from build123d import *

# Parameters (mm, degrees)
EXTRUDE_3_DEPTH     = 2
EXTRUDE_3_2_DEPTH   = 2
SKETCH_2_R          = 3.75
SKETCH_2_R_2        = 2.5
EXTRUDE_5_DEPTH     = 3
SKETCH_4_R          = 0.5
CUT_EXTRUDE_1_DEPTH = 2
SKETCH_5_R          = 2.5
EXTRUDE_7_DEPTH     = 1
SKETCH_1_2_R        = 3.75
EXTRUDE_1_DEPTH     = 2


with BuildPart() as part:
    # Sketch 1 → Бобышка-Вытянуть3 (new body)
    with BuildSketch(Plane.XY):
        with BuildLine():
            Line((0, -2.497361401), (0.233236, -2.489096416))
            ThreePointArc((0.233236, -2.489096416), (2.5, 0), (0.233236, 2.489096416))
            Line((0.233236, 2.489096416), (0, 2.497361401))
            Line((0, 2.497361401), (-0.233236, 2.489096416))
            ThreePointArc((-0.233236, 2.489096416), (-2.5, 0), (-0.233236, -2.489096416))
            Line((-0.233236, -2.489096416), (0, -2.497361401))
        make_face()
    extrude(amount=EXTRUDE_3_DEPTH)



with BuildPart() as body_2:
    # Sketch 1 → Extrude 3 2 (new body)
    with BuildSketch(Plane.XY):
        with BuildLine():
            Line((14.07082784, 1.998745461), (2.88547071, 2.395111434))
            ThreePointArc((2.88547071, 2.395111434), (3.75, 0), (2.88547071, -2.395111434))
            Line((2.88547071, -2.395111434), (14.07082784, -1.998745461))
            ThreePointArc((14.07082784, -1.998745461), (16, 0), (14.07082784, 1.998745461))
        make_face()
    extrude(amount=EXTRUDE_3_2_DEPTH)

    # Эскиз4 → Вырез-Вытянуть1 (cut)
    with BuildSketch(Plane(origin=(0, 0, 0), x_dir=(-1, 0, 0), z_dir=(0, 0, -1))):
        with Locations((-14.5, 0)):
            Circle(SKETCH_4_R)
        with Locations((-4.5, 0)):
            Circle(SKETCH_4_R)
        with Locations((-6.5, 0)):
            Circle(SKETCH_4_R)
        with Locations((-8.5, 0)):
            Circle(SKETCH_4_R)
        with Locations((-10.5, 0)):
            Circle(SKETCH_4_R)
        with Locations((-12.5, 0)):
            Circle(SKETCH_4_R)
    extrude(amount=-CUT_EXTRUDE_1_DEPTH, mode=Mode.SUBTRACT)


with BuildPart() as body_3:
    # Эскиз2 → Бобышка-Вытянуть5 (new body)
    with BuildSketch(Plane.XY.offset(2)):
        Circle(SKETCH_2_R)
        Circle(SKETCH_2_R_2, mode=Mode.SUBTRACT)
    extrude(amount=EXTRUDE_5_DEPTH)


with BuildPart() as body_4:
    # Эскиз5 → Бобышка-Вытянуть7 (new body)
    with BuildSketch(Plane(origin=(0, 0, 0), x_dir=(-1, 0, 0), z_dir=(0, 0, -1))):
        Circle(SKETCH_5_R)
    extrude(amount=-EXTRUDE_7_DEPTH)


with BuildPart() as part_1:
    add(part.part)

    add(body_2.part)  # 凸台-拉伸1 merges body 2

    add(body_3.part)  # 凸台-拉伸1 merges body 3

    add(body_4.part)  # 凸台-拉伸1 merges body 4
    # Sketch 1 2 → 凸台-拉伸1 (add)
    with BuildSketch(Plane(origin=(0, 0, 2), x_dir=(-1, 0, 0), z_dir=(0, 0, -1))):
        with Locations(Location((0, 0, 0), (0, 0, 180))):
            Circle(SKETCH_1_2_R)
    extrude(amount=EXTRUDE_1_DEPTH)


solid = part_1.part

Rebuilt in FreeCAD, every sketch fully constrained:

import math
import FreeCAD as App
import Part
import Sketcher

doc = App.newDocument("Part")
body = doc.addObject("PartDesign::Body", "Body")

sketch1 = body.newObject("Sketcher::SketchObject", "Sketch")
sketch1.AttachmentSupport = (doc.getObject("XY_Plane"), [""])
sketch1.MapMode = "FlatFace"
sketch1.addGeometry(Part.LineSegment(App.Vector(0, -2.5, 0), App.Vector(0.23, -2.49, 0)), False)
sketch1.addGeometry(Part.ArcOfCircle(Part.Circle(App.Vector(0, 0, 0), App.Vector(0, 0, 1), 2.5), math.radians(-85), math.radians(85)), False)
sketch1.addGeometry(Part.LineSegment(App.Vector(0.23, 2.49, 0), App.Vector(0, 2.5, 0)), False)
sketch1.addGeometry(Part.LineSegment(App.Vector(0, 2.5, 0), App.Vector(-0.23, 2.49, 0)), False)
sketch1.addGeometry(Part.ArcOfCircle(Part.Circle(App.Vector(0, 0, 0), App.Vector(0, 0, 1), 2.5), math.radians(95), math.radians(265)), False)
sketch1.addGeometry(Part.LineSegment(App.Vector(-0.23, -2.49, 0), App.Vector(0, -2.5, 0)), False)
sketch1.addConstraint(Sketcher.Constraint("Coincident", 0, 2, 1, 1))
sketch1.addConstraint(Sketcher.Constraint("Coincident", 1, 2, 2, 1))
sketch1.addConstraint(Sketcher.Constraint("Coincident", 2, 2, 3, 1))
sketch1.addConstraint(Sketcher.Constraint("Coincident", 3, 2, 4, 1))
sketch1.addConstraint(Sketcher.Constraint("Coincident", 4, 2, 5, 1))
sketch1.addConstraint(Sketcher.Constraint("Coincident", 5, 2, 0, 1))
sketch1.addConstraint(Sketcher.Constraint("Coincident", 1, 3, -1, 1))
sketch1.addConstraint(Sketcher.Constraint("Coincident", 4, 3, -1, 1))
sketch1.addConstraint(Sketcher.Constraint("Equal", 1, 4))
sketch1.addConstraint(Sketcher.Constraint("Symmetric", 2, 2, 5, 2, -1, 1))
sketch1.addConstraint(Sketcher.Constraint("PointOnObject", 2, 2, -2))
sketch1.addConstraint(Sketcher.Constraint("Parallel", 0, 3))
sketch1.addConstraint(Sketcher.Constraint("Parallel", 2, 5))
sketch1.addConstraint(Sketcher.Constraint("Horizontal", 1, 2, 3, 2))
sketch1.addConstraint(Sketcher.Constraint("Radius", 1, 2.5))
sketch1.addConstraint(Sketcher.Constraint("DistanceY", -1, 1, 2, 2, 2.497361))
sketch1.addConstraint(Sketcher.Constraint("Distance", 0, 0.233382))
pad1 = body.newObject("PartDesign::Pad", "Pad")
pad1.Profile = sketch1
pad1.Length = 2
body2 = doc.addObject("PartDesign::Body", "Body001")

sketch2 = body2.newObject("Sketcher::SketchObject", "Sketch001")
sketch2.AttachmentSupport = (doc.getObject("XY_Plane001"), [""])
sketch2.MapMode = "FlatFace"
sketch2.addGeometry(Part.LineSegment(App.Vector(14.1, 2, 0), App.Vector(2.9, 2.4, 0)), False)
sketch2.addGeometry(Part.ArcOfCircle(Part.Circle(App.Vector(0, 0, 0), App.Vector(0, 0, 1), 3.8), math.radians(-40), math.radians(40)), False)
sketch2.addGeometry(Part.LineSegment(App.Vector(2.9, -2.4, 0), App.Vector(14.1, -2, 0)), False)
sketch2.addGeometry(Part.ArcOfCircle(Part.Circle(App.Vector(14, 0, 0), App.Vector(0, 0, 1), 2), math.radians(-88), math.radians(88)), False)
sketch2.addConstraint(Sketcher.Constraint("Coincident", 0, 2, 1, 2))
sketch2.addConstraint(Sketcher.Constraint("Coincident", 1, 1, 2, 1))
sketch2.addConstraint(Sketcher.Constraint("Tangent", 2, 2, 3, 1))
sketch2.addConstraint(Sketcher.Constraint("Tangent", 3, 2, 0, 1))
sketch2.addConstraint(Sketcher.Constraint("Coincident", 1, 3, -1, 1))
sketch2.addConstraint(Sketcher.Constraint("Symmetric", 2, 2, 3, 2, -1))
sketch2.addConstraint(Sketcher.Constraint("Radius", 3, 2.0))
sketch2.addConstraint(Sketcher.Constraint("Radius", 1, 3.75))
sketch2.addConstraint(Sketcher.Constraint("DistanceX", -1, 1, 3, 3, 14.0))
sketch2.addConstraint(Sketcher.Constraint("DistanceX", -1, 1, 0, 2, 2.885471))
pad2 = body2.newObject("PartDesign::Pad", "Pad001")
pad2.Profile = sketch2
pad2.Length = 2

sketch3 = body2.newObject("Sketcher::SketchObject", "Sketch002")
sketch3.AttachmentSupport = (doc.getObject("XY_Plane001"), [""])
sketch3.MapMode = "FlatFace"
sketch3.addGeometry(Part.Circle(App.Vector(14.5, 0, 0), App.Vector(0, 0, 1), 0.5), False)
sketch3.addGeometry(Part.Circle(App.Vector(4.5, 0, 0), App.Vector(0, 0, 1), 0.5), False)
sketch3.addGeometry(Part.Circle(App.Vector(6.5, 0, 0), App.Vector(0, 0, 1), 0.5), False)
sketch3.addGeometry(Part.Circle(App.Vector(8.5, 0, 0), App.Vector(0, 0, 1), 0.5), False)
sketch3.addGeometry(Part.Circle(App.Vector(10.5, 0, 0), App.Vector(0, 0, 1), 0.5), False)
sketch3.addGeometry(Part.Circle(App.Vector(12.5, 0, 0), App.Vector(0, 0, 1), 0.5), False)
sketch3.addConstraint(Sketcher.Constraint("Equal", 0, 1))
sketch3.addConstraint(Sketcher.Constraint("Equal", 1, 2))
sketch3.addConstraint(Sketcher.Constraint("Equal", 2, 3))
sketch3.addConstraint(Sketcher.Constraint("Equal", 3, 4))
sketch3.addConstraint(Sketcher.Constraint("Equal", 4, 5))
sketch3.addConstraint(Sketcher.Constraint("PointOnObject", 0, 3, -1))
sketch3.addConstraint(Sketcher.Constraint("PointOnObject", 1, 3, -1))
sketch3.addConstraint(Sketcher.Constraint("PointOnObject", 2, 3, -1))
sketch3.addConstraint(Sketcher.Constraint("PointOnObject", 3, 3, -1))
sketch3.addConstraint(Sketcher.Constraint("PointOnObject", 4, 3, -1))
sketch3.addConstraint(Sketcher.Constraint("PointOnObject", 5, 3, -1))
sketch3.addConstraint(Sketcher.Constraint("Diameter", 0, 1.0))
sketch3.addConstraint(Sketcher.Constraint("DistanceX", 1, 3, 0, 3, 10.0))
sketch3.addConstraint(Sketcher.Constraint("DistanceX", 1, 3, 2, 3, 2.0))
sketch3.addConstraint(Sketcher.Constraint("DistanceX", 2, 3, 3, 3, 2.0))
sketch3.addConstraint(Sketcher.Constraint("DistanceX", 3, 3, 4, 3, 2.0))
sketch3.addConstraint(Sketcher.Constraint("DistanceX", 5, 3, 0, 3, 2.0))
sketch3.addConstraint(Sketcher.Constraint("DistanceX", -1, 1, 0, 3, 14.5))
pocket1 = body2.newObject("PartDesign::Pocket", "Pocket")
pocket1.Profile = sketch3
pocket1.Length = 2
pocket1.Reversed = True
body3 = doc.addObject("PartDesign::Body", "Body002")

sketch4 = body3.newObject("Sketcher::SketchObject", "Sketch003")
sketch4.AttachmentSupport = (doc.getObject("XY_Plane002"), [""])
sketch4.MapMode = "FlatFace"
sketch4.AttachmentOffset = App.Placement(App.Vector(0, 0, 2), App.Rotation())
sketch4.addGeometry(Part.Circle(App.Vector(0, 0, 0), App.Vector(0, 0, 1), 3.8), False)
sketch4.addGeometry(Part.Circle(App.Vector(0, 0, 0), App.Vector(0, 0, 1), 2.5), False)
sketch4.addConstraint(Sketcher.Constraint("Coincident", 0, 3, -1, 1))
sketch4.addConstraint(Sketcher.Constraint("Coincident", 1, 3, -1, 1))
sketch4.addConstraint(Sketcher.Constraint("Diameter", 1, 5.0))
sketch4.addConstraint(Sketcher.Constraint("Diameter", 0, 7.5))
pad3 = body3.newObject("PartDesign::Pad", "Pad002")
pad3.Profile = sketch4
pad3.Length = 3
body4 = doc.addObject("PartDesign::Body", "Body003")

sketch5 = body4.newObject("Sketcher::SketchObject", "Sketch004")
sketch5.AttachmentSupport = (doc.getObject("XY_Plane003"), [""])
sketch5.MapMode = "FlatFace"
sketch5.addGeometry(Part.Circle(App.Vector(0, 0, 0), App.Vector(0, 0, 1), 2.5), False)
sketch5.addConstraint(Sketcher.Constraint("Coincident", 0, 3, -1, 1))
sketch5.addConstraint(Sketcher.Constraint("Diameter", 0, 5.0))
pad4 = body4.newObject("PartDesign::Pad", "Pad003")
pad4.Profile = sketch5
pad4.Length = 1
body.AllowCompound = True
doc.recompute()

boolean = body.newObject("PartDesign::Boolean", "Boolean")
boolean.Type = "Fuse"
boolean.addObjects([body2])
doc.recompute()

boolean2 = body.newObject("PartDesign::Boolean", "Boolean001")
boolean2.Type = "Fuse"
boolean2.addObjects([body3])
doc.recompute()

boolean3 = body.newObject("PartDesign::Boolean", "Boolean002")
boolean3.Type = "Fuse"
boolean3.addObjects([body4])

sketch6 = body.newObject("Sketcher::SketchObject", "Sketch005")
sketch6.AttachmentSupport = (doc.getObject("XY_Plane"), [""])
sketch6.MapMode = "FlatFace"
sketch6.AttachmentOffset = App.Placement(App.Vector(0, 0, 2), App.Rotation())
sketch6.addGeometry(Part.Circle(App.Vector(0, 0, 0), App.Vector(0, 0, 1), 3.8), False)
sketch6.addConstraint(Sketcher.Constraint("Coincident", 0, 3, -1, 1))
sketch6.addConstraint(Sketcher.Constraint("Diameter", 0, 7.5))
pad5 = body.newObject("PartDesign::Pad", "Pad004")
pad5.Profile = sketch6
pad5.Length = 2
pad5.Reversed = True

doc.recompute()
